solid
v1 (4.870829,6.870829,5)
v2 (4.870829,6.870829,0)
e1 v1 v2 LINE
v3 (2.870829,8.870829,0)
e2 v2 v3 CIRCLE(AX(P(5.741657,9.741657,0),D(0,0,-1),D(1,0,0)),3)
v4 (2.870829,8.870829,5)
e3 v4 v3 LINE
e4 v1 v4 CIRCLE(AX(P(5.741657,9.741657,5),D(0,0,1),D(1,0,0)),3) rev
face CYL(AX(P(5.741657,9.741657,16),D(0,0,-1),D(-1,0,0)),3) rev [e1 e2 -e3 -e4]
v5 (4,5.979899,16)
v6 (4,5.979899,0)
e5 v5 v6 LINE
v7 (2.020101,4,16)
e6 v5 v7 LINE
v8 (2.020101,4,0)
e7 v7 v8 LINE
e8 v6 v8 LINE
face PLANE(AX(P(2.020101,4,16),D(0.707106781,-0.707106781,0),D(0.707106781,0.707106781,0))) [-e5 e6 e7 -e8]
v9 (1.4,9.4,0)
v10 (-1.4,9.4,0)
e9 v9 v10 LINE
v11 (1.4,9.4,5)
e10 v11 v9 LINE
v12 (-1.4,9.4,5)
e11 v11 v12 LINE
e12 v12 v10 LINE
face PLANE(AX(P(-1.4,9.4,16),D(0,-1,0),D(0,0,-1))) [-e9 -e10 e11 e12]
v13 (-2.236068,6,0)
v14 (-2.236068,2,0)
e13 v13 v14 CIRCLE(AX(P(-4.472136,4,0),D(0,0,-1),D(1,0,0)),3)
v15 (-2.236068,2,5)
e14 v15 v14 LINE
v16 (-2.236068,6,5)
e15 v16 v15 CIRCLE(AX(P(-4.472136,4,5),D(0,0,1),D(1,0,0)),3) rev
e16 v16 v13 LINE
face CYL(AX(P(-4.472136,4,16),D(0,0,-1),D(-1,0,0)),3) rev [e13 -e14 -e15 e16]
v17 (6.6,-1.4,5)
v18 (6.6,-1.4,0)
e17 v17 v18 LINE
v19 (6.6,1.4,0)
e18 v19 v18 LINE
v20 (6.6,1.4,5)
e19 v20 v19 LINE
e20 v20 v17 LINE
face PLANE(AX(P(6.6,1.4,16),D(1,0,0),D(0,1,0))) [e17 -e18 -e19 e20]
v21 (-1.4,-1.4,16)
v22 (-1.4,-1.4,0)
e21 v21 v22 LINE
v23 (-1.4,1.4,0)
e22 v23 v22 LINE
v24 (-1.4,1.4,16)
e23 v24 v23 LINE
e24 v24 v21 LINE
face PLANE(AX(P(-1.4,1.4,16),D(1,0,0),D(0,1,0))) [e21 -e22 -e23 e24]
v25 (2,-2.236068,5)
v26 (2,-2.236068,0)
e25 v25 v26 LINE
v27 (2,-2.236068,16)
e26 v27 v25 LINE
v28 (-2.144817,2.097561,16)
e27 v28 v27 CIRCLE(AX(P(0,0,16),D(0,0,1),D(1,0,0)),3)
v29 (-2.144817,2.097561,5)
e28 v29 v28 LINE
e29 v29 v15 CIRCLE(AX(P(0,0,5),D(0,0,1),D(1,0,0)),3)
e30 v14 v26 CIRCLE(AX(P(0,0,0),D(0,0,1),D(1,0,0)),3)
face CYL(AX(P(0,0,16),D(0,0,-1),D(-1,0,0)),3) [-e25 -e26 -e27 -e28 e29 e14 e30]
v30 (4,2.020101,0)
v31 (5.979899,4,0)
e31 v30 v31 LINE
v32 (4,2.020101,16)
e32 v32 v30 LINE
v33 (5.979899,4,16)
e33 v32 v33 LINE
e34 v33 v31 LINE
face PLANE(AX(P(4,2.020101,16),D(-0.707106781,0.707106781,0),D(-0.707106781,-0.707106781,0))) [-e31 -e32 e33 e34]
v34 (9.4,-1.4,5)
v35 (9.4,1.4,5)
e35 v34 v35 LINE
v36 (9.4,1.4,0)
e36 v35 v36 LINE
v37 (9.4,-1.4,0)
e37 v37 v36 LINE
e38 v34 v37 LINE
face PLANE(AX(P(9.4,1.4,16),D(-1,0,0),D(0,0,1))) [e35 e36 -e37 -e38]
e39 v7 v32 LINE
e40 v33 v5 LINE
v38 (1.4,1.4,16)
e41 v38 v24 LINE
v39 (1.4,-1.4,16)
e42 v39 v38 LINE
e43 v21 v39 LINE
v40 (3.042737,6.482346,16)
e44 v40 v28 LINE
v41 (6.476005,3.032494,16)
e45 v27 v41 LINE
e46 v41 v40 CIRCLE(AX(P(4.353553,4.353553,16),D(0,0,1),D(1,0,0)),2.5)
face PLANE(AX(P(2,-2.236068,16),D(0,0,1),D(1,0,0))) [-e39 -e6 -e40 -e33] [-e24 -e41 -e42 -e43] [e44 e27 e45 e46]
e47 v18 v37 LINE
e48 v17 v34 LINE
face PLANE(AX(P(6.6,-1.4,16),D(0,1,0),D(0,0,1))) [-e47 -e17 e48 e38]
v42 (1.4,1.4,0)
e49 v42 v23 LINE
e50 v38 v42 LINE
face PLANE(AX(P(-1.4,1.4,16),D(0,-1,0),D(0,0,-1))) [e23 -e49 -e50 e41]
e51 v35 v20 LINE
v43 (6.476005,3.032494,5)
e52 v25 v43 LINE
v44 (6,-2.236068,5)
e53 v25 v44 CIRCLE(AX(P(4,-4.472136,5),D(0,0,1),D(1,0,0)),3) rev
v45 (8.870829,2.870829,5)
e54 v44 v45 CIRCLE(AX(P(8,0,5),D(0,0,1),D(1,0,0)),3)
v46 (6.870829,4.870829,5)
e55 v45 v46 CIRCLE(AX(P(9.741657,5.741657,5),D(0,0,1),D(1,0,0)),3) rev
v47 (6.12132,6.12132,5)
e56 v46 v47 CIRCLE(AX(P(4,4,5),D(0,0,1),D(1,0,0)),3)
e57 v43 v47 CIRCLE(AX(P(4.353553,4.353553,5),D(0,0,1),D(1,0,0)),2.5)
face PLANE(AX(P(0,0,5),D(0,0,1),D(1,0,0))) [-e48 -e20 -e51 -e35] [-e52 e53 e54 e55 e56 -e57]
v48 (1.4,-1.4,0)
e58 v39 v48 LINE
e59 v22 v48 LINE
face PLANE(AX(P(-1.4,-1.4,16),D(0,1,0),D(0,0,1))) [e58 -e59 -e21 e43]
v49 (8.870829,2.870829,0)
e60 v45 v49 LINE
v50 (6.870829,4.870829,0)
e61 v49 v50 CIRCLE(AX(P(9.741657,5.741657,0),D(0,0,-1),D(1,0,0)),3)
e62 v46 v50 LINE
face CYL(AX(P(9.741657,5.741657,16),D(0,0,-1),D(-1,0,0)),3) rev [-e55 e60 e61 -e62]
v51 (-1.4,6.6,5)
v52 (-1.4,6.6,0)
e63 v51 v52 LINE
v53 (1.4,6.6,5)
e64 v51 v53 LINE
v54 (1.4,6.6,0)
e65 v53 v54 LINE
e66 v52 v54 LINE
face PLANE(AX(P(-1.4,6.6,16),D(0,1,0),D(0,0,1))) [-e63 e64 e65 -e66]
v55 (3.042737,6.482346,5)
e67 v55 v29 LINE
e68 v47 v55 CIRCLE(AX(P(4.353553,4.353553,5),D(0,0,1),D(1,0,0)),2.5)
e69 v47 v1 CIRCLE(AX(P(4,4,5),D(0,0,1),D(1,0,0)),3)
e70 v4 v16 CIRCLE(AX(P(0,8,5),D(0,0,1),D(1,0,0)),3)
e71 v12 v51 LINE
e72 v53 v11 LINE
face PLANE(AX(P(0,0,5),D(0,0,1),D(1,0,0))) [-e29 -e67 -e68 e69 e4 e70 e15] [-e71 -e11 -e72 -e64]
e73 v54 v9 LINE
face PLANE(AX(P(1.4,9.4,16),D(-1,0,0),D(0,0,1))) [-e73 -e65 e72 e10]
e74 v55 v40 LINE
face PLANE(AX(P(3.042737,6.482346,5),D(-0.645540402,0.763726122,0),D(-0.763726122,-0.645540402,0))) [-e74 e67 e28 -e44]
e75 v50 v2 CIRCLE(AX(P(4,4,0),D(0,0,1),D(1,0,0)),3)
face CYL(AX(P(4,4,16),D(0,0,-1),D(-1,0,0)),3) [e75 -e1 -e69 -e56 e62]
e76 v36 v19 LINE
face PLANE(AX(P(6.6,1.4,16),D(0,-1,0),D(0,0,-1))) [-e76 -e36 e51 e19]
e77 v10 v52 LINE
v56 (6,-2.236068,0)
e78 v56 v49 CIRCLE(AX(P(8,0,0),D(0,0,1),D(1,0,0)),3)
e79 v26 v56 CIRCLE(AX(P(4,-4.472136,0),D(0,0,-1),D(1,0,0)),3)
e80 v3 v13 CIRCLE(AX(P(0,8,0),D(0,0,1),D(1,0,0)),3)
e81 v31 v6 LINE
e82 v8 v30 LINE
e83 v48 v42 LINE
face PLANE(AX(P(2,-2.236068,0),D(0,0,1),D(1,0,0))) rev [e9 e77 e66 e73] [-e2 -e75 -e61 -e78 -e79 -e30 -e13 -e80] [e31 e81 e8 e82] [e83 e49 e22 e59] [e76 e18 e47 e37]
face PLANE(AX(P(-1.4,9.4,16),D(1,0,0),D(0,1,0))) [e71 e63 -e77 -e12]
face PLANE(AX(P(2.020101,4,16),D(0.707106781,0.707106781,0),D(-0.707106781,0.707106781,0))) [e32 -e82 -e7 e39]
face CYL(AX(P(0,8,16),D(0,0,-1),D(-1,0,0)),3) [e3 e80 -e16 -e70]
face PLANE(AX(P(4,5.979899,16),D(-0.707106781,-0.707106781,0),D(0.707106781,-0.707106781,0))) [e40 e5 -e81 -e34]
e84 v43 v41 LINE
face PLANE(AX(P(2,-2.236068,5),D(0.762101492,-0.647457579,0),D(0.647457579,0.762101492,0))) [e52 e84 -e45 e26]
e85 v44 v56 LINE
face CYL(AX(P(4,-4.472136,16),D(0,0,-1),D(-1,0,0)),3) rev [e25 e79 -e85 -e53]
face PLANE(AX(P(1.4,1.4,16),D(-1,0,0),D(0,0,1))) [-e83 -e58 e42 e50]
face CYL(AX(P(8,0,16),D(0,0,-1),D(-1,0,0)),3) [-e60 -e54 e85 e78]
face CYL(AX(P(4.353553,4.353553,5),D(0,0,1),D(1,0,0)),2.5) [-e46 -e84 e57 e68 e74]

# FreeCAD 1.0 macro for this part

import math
import FreeCAD as App
import Part
import Sketcher
from FreeCAD import Vector

doc = App.newDocument("Part")
body = doc.addObject("PartDesign::Body", "Body")

# Sketch on XY plane
sketch1 = doc.addObject("Sketcher::SketchObject", "Sketch")
body.addObject(sketch1)
sketch1.AttachmentSupport = (doc.XY_Plane, [""])
sketch1.MapMode = "FlatFace"
sketch1.addGeometry(Part.ArcOfCircle(Part.Circle(Vector(0, 8, 0), Vector(0, 0, 1), 3), math.radians(17), math.radians(222)), False)
sketch1.addGeometry(Part.ArcOfCircle(Part.Circle(Vector(-4.5, 4, 0), Vector(0, 0, 1), 3), math.radians(-42), math.radians(42)), False)
sketch1.addGeometry(Part.ArcOfCircle(Part.Circle(Vector(0, 0, 0), Vector(0, 0, 1), 3), math.radians(138), math.radians(312)), False)
sketch1.addGeometry(Part.ArcOfCircle(Part.Circle(Vector(4, -4.5, 0), Vector(0, 0, 1), 3), math.radians(48), math.radians(132)), False)
sketch1.addGeometry(Part.ArcOfCircle(Part.Circle(Vector(8, 0, 0), Vector(0, 0, 1), 3), math.radians(-132), math.radians(73)), False)
sketch1.addGeometry(Part.ArcOfCircle(Part.Circle(Vector(9.7, 5.7, 0), Vector(0, 0, 1), 3), math.radians(-163), math.radians(-107)), False)
sketch1.addGeometry(Part.ArcOfCircle(Part.Circle(Vector(4, 4, 0), Vector(0, 0, 1), 3), math.radians(17), math.radians(73)), False)
sketch1.addGeometry(Part.ArcOfCircle(Part.Circle(Vector(5.7, 9.7, 0), Vector(0, 0, 1), 3), math.radians(-163), math.radians(-107)), False)
sketch1.addGeometry(Part.LineSegment(Vector(1.4, -1.4, 0), Vector(-1.4, -1.4, 0)), False)
sketch1.addGeometry(Part.LineSegment(Vector(-1.4, -1.4, 0), Vector(-1.4, 1.4, 0)), False)
sketch1.addGeometry(Part.LineSegment(Vector(-1.4, 1.4, 0), Vector(1.4, 1.4, 0)), False)
sketch1.addGeometry(Part.LineSegment(Vector(1.4, 1.4, 0), Vector(1.4, -1.4, 0)), False)
sketch1.addGeometry(Part.LineSegment(Vector(2, 4, 0), Vector(4, 6, 0)), False)
sketch1.addGeometry(Part.LineSegment(Vector(4, 6, 0), Vector(6, 4, 0)), False)
sketch1.addGeometry(Part.LineSegment(Vector(6, 4, 0), Vector(4, 2, 0)), False)
sketch1.addGeometry(Part.LineSegment(Vector(4, 2, 0), Vector(2, 4, 0)), False)
sketch1.addGeometry(Part.LineSegment(Vector(9.4, -1.4, 0), Vector(6.6, -1.4, 0)), False)
sketch1.addGeometry(Part.LineSegment(Vector(6.6, -1.4, 0), Vector(6.6, 1.4, 0)), False)
sketch1.addGeometry(Part.LineSegment(Vector(6.6, 1.4, 0), Vector(9.4, 1.4, 0)), False)
sketch1.addGeometry(Part.LineSegment(Vector(9.4, 1.4, 0), Vector(9.4, -1.4, 0)), False)
sketch1.addGeometry(Part.LineSegment(Vector(1.4, 6.6, 0), Vector(-1.4, 6.6, 0)), False)
sketch1.addGeometry(Part.LineSegment(Vector(-1.4, 6.6, 0), Vector(-1.4, 9.4, 0)), False)
sketch1.addGeometry(Part.LineSegment(Vector(-1.4, 9.4, 0), Vector(1.4, 9.4, 0)), False)
sketch1.addGeometry(Part.LineSegment(Vector(1.4, 9.4, 0), Vector(1.4, 6.6, 0)), False)
sketch1.addConstraint(Sketcher.Constraint("Tangent", 0, 2, 1, 2))
sketch1.addConstraint(Sketcher.Constraint("Tangent", 1, 1, 2, 1))
sketch1.addConstraint(Sketcher.Constraint("Tangent", 2, 2, 3, 2))
sketch1.addConstraint(Sketcher.Constraint("Tangent", 3, 1, 4, 1))
sketch1.addConstraint(Sketcher.Constraint("Tangent", 4, 2, 5, 2))
sketch1.addConstraint(Sketcher.Constraint("Tangent", 5, 1, 6, 1))
sketch1.addConstraint(Sketcher.Constraint("Tangent", 6, 2, 7, 2))
sketch1.addConstraint(Sketcher.Constraint("Tangent", 7, 1, 0, 1))
sketch1.addConstraint(Sketcher.Constraint("Coincident", 8, 2, 9, 1))
sketch1.addConstraint(Sketcher.Constraint("Coincident", 9, 2, 10, 1))
sketch1.addConstraint(Sketcher.Constraint("Coincident", 10, 2, 11, 1))
sketch1.addConstraint(Sketcher.Constraint("Coincident", 11, 2, 8, 1))
sketch1.addConstraint(Sketcher.Constraint("Coincident", 12, 2, 13, 1))
sketch1.addConstraint(Sketcher.Constraint("Coincident", 13, 2, 14, 1))
sketch1.addConstraint(Sketcher.Constraint("Coincident", 14, 2, 15, 1))
sketch1.addConstraint(Sketcher.Constraint("Coincident", 15, 2, 12, 1))
sketch1.addConstraint(Sketcher.Constraint("Coincident", 16, 2, 17, 1))
sketch1.addConstraint(Sketcher.Constraint("Coincident", 17, 2, 18, 1))
sketch1.addConstraint(Sketcher.Constraint("Coincident", 18, 2, 19, 1))
sketch1.addConstraint(Sketcher.Constraint("Coincident", 19, 2, 16, 1))
sketch1.addConstraint(Sketcher.Constraint("Coincident", 20, 2, 21, 1))
sketch1.addConstraint(Sketcher.Constraint("Coincident", 21, 2, 22, 1))
sketch1.addConstraint(Sketcher.Constraint("Coincident", 22, 2, 23, 1))
sketch1.addConstraint(Sketcher.Constraint("Coincident", 23, 2, 20, 1))
sketch1.addConstraint(Sketcher.Constraint("Horizontal", 8))
sketch1.addConstraint(Sketcher.Constraint("Vertical", 9))
sketch1.addConstraint(Sketcher.Constraint("Horizontal", 10))
sketch1.addConstraint(Sketcher.Constraint("Vertical", 11))
sketch1.addConstraint(Sketcher.Constraint("Horizontal", 16))
sketch1.addConstraint(Sketcher.Constraint("Vertical", 17))
sketch1.addConstraint(Sketcher.Constraint("Horizontal", 18))
sketch1.addConstraint(Sketcher.Constraint("Vertical", 19))
sketch1.addConstraint(Sketcher.Constraint("Horizontal", 20))
sketch1.addConstraint(Sketcher.Constraint("Vertical", 21))
sketch1.addConstraint(Sketcher.Constraint("Horizontal", 22))
sketch1.addConstraint(Sketcher.Constraint("Vertical", 23))
sketch1.addConstraint(Sketcher.Constraint("Coincident", 2, 3, -1, 1))
sketch1.addConstraint(Sketcher.Constraint("Equal", 0, 1))
sketch1.addConstraint(Sketcher.Constraint("Equal", 1, 2))
sketch1.addConstraint(Sketcher.Constraint("Equal", 2, 3))
sketch1.addConstraint(Sketcher.Constraint("Equal", 3, 4))
sketch1.addConstraint(Sketcher.Constraint("Equal", 4, 5))
sketch1.addConstraint(Sketcher.Constraint("Equal", 5, 6))
sketch1.addConstraint(Sketcher.Constraint("Equal", 6, 7))
sketch1.addConstraint(Sketcher.Constraint("Symmetric", 8, 2, 10, 2, -1, 1))
sketch1.addConstraint(Sketcher.Constraint("PointOnObject", 0, 3, -2))
sketch1.addConstraint(Sketcher.Constraint("PointOnObject", 4, 3, -1))
sketch1.addConstraint(Sketcher.Constraint("Perpendicular", 12, 13))
sketch1.addConstraint(Sketcher.Constraint("Perpendicular", 13, 14))
sketch1.addConstraint(Sketcher.Constraint("Perpendicular", 14, 15))
sketch1.addConstraint(Sketcher.Constraint("Horizontal", 1, 3, 6, 3))
sketch1.addConstraint(Sketcher.Constraint("Horizontal", 6, 3, 13, 2))
sketch1.addConstraint(Sketcher.Constraint("Horizontal", 13, 2, 15, 2))
sketch1.addConstraint(Sketcher.Constraint("Horizontal", 11, 2, 16, 2))
sketch1.addConstraint(Sketcher.Constraint("Horizontal", 10, 2, 17, 2))
sketch1.addConstraint(Sketcher.Constraint("Vertical", 3, 3, 6, 3))
sketch1.addConstraint(Sketcher.Constraint("Vertical", 6, 3, 12, 2))
sketch1.addConstraint(Sketcher.Constraint("Vertical", 12, 2, 14, 2))
sketch1.addConstraint(Sketcher.Constraint("Vertical", 9, 2, 20, 2))
sketch1.addConstraint(Sketcher.Constraint("Vertical", 11, 2, 22, 2))
sketch1.addConstraint(Sketcher.Constraint("Equal", 10, 16))
sketch1.addConstraint(Sketcher.Constraint("Equal", 22, 9))
sketch1.addConstraint(Sketcher.Constraint("Equal", 19, 21))
sketch1.addConstraint(Sketcher.Constraint("Radius", 0, 3.0))
sketch1.addConstraint(Sketcher.Constraint("DistanceX", 8, 2, 8, 1, 2.8))
sketch1.addConstraint(Sketcher.Constraint("DistanceY", -1, 1, 0, 3, 8.0))
sketch1.addConstraint(Sketcher.Constraint("DistanceX", -1, 1, 3, 3, 4.0))
sketch1.addConstraint(Sketcher.Constraint("Distance", 12, 2.8))
sketch1.addConstraint(Sketcher.Constraint("DistanceX", -1, 1, 16, 2, 6.6))
sketch1.addConstraint(Sketcher.Constraint("DistanceY", -1, 1, 20, 2, 6.6))
pad1 = doc.addObject("PartDesign::Pad", "Pad")
body.addObject(pad1)
pad1.Profile = sketch1
pad1.Length = 16

# Sketch on XY plane
sketch2 = doc.addObject("Sketcher::SketchObject", "Sketch001")
body.addObject(sketch2)
sketch2.AttachmentSupport = (doc.XY_Plane, [""])
sketch2.MapMode = "FlatFace"
sketch2.AttachmentOffset = App.Placement(Vector(0, 0, 5), App.Rotation())
sketch2.addGeometry(Part.LineSegment(Vector(9.3, -9, 0), Vector(14.4, -3.1, 0)), False)
sketch2.addGeometry(Part.ArcOfCircle(Part.Circle(Vector(4.4, 4.4, 0), Vector(0, 0, 1), 12.5), math.radians(-37), math.radians(126)), False)
sketch2.addGeometry(Part.LineSegment(Vector(-3.1, 14.4, 0), Vector(-8.8, 9.5, 0)), False)
sketch2.addGeometry(Part.ArcOfCircle(Part.Circle(Vector(0, 0, 0), Vector(0, 0, 1), 13), math.radians(133), math.radians(316)), False)
sketch2.addGeometry(Part.LineSegment(Vector(6.5, 3, 0), Vector(2, -2.2, 0)), False)
sketch2.addGeometry(Part.ArcOfCircle(Part.Circle(Vector(0, 0, 0), Vector(0, 0, 1), 3), math.radians(136), math.radians(312)), False)
sketch2.addGeometry(Part.LineSegment(Vector(-2.1, 2.1, 0), Vector(3, 6.5, 0)), False)
sketch2.addGeometry(Part.ArcOfCircle(Part.Circle(Vector(4.4, 4.4, 0), Vector(0, 0, 1), 2.5), math.radians(-32), math.radians(122)), False)
sketch2.addConstraint(Sketcher.Constraint("Coincident", 0, 2, 1, 1))
sketch2.addConstraint(Sketcher.Constraint("Coincident", 1, 2, 2, 1))
sketch2.addConstraint(Sketcher.Constraint("Coincident", 2, 2, 3, 1))
sketch2.addConstraint(Sketcher.Constraint("Coincident", 3, 2, 0, 1))
sketch2.addConstraint(Sketcher.Constraint("Coincident", 4, 2, 5, 2))
sketch2.addConstraint(Sketcher.Constraint("Coincident", 5, 1, 6, 1))
sketch2.addConstraint(Sketcher.Constraint("Coincident", 6, 2, 7, 2))
sketch2.addConstraint(Sketcher.Constraint("Coincident", 7, 1, 4, 1))
sketch2.addConstraint(Sketcher.Constraint("Coincident", 3, 3, -1, 1))
sketch2.addConstraint(Sketcher.Constraint("Coincident", 5, 3, -1, 1))
sketch2.addConstraint(Sketcher.Constraint("Coincident", 7, 3, 1, 3))
sketch2.addConstraint(Sketcher.Constraint("Parallel", 0, 4))
sketch2.addConstraint(Sketcher.Constraint("Parallel", 2, 6))
sketch2.addConstraint(Sketcher.Constraint("Radius", 3, 13.0))
sketch2.addConstraint(Sketcher.Constraint("Radius", 5, 3.0))
sketch2.addConstraint(Sketcher.Constraint("Radius", 1, 12.5))
sketch2.addConstraint(Sketcher.Constraint("Radius", 7, 2.5))
sketch2.addConstraint(Sketcher.Constraint("DistanceX", -1, 1, 4, 2, 2.0))
sketch2.addConstraint(Sketcher.Constraint("DistanceY", -1, 1, 1, 2, 14.418541))
sketch2.addConstraint(Sketcher.Constraint("DistanceY", -1, 1, 2, 2, 9.536192))
sketch2.addConstraint(Sketcher.Constraint("DistanceY", 3, 2, -1, 1, 9.049131))
sketch2.addConstraint(Sketcher.Constraint("DistanceY", -1, 1, 5, 1, 2.097561))
sketch2.addConstraint(Sketcher.Constraint("DistanceX", 1, 3, 0, 2, 10.03867))
sketch2.addConstraint(Sketcher.Constraint("DistanceX", 1, 2, 7, 3, 7.412558))
sketch2.addConstraint(Sketcher.Constraint("DistanceX", 2, 2, 1, 2, 5.776211))
pocket1 = doc.addObject("PartDesign::Pocket", "Pocket")
body.addObject(pocket1)
pocket1.Profile = sketch2
pocket1.Length = 11
pocket1.Reversed = True

doc.recompute()
